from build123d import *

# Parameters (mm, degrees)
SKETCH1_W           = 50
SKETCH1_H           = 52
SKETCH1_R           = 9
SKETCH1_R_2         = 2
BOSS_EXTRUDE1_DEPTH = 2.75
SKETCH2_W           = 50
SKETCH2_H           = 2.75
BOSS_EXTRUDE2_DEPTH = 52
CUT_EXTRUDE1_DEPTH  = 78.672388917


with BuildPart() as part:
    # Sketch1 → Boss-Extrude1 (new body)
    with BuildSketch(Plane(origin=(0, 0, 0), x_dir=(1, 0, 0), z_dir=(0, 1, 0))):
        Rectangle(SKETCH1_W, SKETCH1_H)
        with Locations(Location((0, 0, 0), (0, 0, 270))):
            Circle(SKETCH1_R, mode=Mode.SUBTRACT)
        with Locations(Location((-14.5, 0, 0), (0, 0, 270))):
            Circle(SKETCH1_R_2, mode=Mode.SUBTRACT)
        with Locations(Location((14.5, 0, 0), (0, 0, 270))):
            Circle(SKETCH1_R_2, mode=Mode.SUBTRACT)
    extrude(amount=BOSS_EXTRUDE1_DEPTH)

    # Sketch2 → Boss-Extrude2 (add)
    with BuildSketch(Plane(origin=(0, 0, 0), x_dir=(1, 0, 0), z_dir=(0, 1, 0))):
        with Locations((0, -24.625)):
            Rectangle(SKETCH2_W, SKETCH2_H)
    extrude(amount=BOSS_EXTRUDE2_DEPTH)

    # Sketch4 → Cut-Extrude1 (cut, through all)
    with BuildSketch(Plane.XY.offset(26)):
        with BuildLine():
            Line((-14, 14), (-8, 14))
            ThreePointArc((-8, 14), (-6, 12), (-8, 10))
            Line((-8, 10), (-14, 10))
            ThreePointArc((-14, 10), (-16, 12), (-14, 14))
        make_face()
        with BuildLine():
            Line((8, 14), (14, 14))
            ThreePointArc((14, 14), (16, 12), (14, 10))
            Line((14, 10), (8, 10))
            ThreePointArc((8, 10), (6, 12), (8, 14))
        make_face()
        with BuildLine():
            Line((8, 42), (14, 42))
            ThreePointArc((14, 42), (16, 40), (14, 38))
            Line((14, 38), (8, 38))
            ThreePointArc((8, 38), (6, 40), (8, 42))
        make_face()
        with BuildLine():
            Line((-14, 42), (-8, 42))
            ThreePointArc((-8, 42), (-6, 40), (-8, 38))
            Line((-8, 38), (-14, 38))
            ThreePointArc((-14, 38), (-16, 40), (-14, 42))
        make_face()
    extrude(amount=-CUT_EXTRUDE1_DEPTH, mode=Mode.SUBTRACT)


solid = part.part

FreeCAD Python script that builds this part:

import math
import FreeCAD as App
import Part
import Sketcher
from FreeCAD import Vector

doc = App.newDocument("Part")
body = doc.addObject("PartDesign::Body", "Body")

sketch1 = doc.addObject("Sketcher::SketchObject", "Sketch")
body.addObject(sketch1)
sketch1.AttachmentSupport = (doc.XZ_Plane, [""])
sketch1.MapMode = "FlatFace"
sketch1.addGeometry([
    Part.LineSegment(Vector(-25, -26, 0), Vector(-25, 26, 0)),
    Part.LineSegment(Vector(-25, 26, 0), Vector(25, 26, 0)),
    Part.LineSegment(Vector(25, 26, 0), Vector(25, -26, 0)),
    Part.LineSegment(Vector(25, -26, 0), Vector(-25, -26, 0)),
    Part.Circle(Vector(-14.5, 0, 0), Vector(0, 0, 1), 2),
    Part.Circle(Vector(0, 0, 0), Vector(0, 0, 1), 9),
    Part.Circle(Vector(14.5, 0, 0), Vector(0, 0, 1), 2),
], False)
sketch1.addConstraint([
    Sketcher.Constraint("Coincident", 0, 2, 1, 1),
    Sketcher.Constraint("Coincident", 1, 2, 2, 1),
    Sketcher.Constraint("Coincident", 2, 2, 3, 1),
    Sketcher.Constraint("Coincident", 3, 2, 0, 1),
    Sketcher.Constraint("Vertical", 0),
    Sketcher.Constraint("Horizontal", 1),
    Sketcher.Constraint("Vertical", 2),
    Sketcher.Constraint("Horizontal", 3),
    Sketcher.Constraint("Coincident", 5, 3, -1, 1),
    Sketcher.Constraint("Equal", 4, 6),
    Sketcher.Constraint("Symmetric", 4, 3, 6, 3, -1, 1),
    Sketcher.Constraint("Symmetric", 0, 2, 2, 2, -1, 1),
    Sketcher.Constraint("PointOnObject", 4, 3, -1),
    Sketcher.Constraint("Diameter", 4, 4.0),
    Sketcher.Constraint("Diameter", 5, 18.0),
    Sketcher.Constraint("DistanceX", 1, 1, 1, 2, 50.0),
    Sketcher.Constraint("DistanceY", 0, 1, 0, 2, 52.0),
    Sketcher.Constraint("DistanceX", 4, 3, 6, 3, 29.0),
])
pad1 = doc.addObject("PartDesign::Pad", "Pad")
body.addObject(pad1)
pad1.Profile = sketch1
pad1.Length = 2.75
pad1.Reversed = True

sketch2 = doc.addObject("Sketcher::SketchObject", "Sketch001")
body.addObject(sketch2)
sketch2.AttachmentSupport = (doc.XZ_Plane, [""])
sketch2.MapMode = "FlatFace"
sketch2.addGeometry([
    Part.LineSegment(Vector(-25, 23.2, 0), Vector(-25, 26, 0)),
    Part.LineSegment(Vector(-25, 26, 0), Vector(25, 26, 0)),
    Part.LineSegment(Vector(25, 26, 0), Vector(25, 23.2, 0)),
    Part.LineSegment(Vector(25, 23.2, 0), Vector(-25, 23.2, 0)),
], False)
sketch2.addConstraint([
    Sketcher.Constraint("Coincident", 0, 2, 1, 1),
    Sketcher.Constraint("Coincident", 1, 2, 2, 1),
    Sketcher.Constraint("Coincident", 2, 2, 3, 1),
    Sketcher.Constraint("Coincident", 3, 2, 0, 1),
    Sketcher.Constraint("Vertical", 0),
    Sketcher.Constraint("Horizontal", 1),
    Sketcher.Constraint("Vertical", 2),
    Sketcher.Constraint("Horizontal", 3),
    Sketcher.Constraint("DistanceX", 1, 1, 1, 2, 50.0),
    Sketcher.Constraint("DistanceX", 0, 2, -1, 1, 25.0),
    Sketcher.Constraint("DistanceY", -1, 1, 0, 2, 26.0),
    Sketcher.Constraint("DistanceY", 0, 1, 0, 2, 2.75),
])
pad2 = doc.addObject("PartDesign::Pad", "Pad001")
body.addObject(pad2)
pad2.Profile = sketch2
pad2.Length = 52
pad2.Reversed = True

sketch3 = doc.addObject("Sketcher::SketchObject", "Sketch002")
body.addObject(sketch3)
sketch3.AttachmentSupport = (doc.XY_Plane, [""])
sketch3.MapMode = "FlatFace"
sketch3.AttachmentOffset = App.Placement(Vector(0, 0, 26), App.Rotation())
sketch3.addGeometry([
    Part.LineSegment(Vector(-8, 14, 0), Vector(-14, 14, 0)),
    Part.ArcOfCircle(Part.Circle(Vector(-14, 12, 0), Vector(0, 0, 1), 2), math.radians(90), math.radians(270)),
    Part.LineSegment(Vector(-14, 10, 0), Vector(-8, 10, 0)),
    Part.ArcOfCircle(Part.Circle(Vector(-8, 12, 0), Vector(0, 0, 1), 2), math.radians(-90), math.radians(90)),
    Part.LineSegment(Vector(14, 14, 0), Vector(8, 14, 0)),
    Part.ArcOfCircle(Part.Circle(Vector(8, 12, 0), Vector(0, 0, 1), 2), math.radians(90), math.radians(270)),
    Part.LineSegment(Vector(8, 10, 0), Vector(14, 10, 0)),
    Part.ArcOfCircle(Part.Circle(Vector(14, 12, 0), Vector(0, 0, 1), 2), math.radians(-90), math.radians(90)),
    Part.LineSegment(Vector(14, 42, 0), Vector(8, 42, 0)),
    Part.ArcOfCircle(Part.Circle(Vector(8, 40, 0), Vector(0, 0, 1), 2), math.radians(90), math.radians(270)),
    Part.LineSegment(Vector(8, 38, 0), Vector(14, 38, 0)),
    Part.ArcOfCircle(Part.Circle(Vector(14, 40, 0), Vector(0, 0, 1), 2), math.radians(-90), math.radians(90)),
    Part.LineSegment(Vector(-8, 42, 0), Vector(-14, 42, 0)),
    Part.ArcOfCircle(Part.Circle(Vector(-14, 40, 0), Vector(0, 0, 1), 2), math.radians(90), math.radians(270)),
    Part.LineSegment(Vector(-14, 38, 0), Vector(-8, 38, 0)),
    Part.ArcOfCircle(Part.Circle(Vector(-8, 40, 0), Vector(0, 0, 1), 2), math.radians(-90), math.radians(90)),
], False)
sketch3.addConstraint([
    Sketcher.Constraint("Tangent", 0, 2, 1, 1),
    Sketcher.Constraint("Tangent", 1, 2, 2, 1),
    Sketcher.Constraint("Tangent", 2, 2, 3, 1),
    Sketcher.Constraint("Tangent", 3, 2, 0, 1),
    Sketcher.Constraint("Tangent", 4, 2, 5, 1),
    Sketcher.Constraint("Tangent", 5, 2, 6, 1),
    Sketcher.Constraint("Tangent", 6, 2, 7, 1),
    Sketcher.Constraint("Tangent", 7, 2, 4, 1),
    Sketcher.Constraint("Tangent", 8, 2, 9, 1),
    Sketcher.Constraint("Tangent", 9, 2, 10, 1),
    Sketcher.Constraint("Tangent", 10, 2, 11, 1),
    Sketcher.Constraint("Tangent", 11, 2, 8, 1),
    Sketcher.Constraint("Tangent", 12, 2, 13, 1),
    Sketcher.Constraint("Tangent", 13, 2, 14, 1),
    Sketcher.Constraint("Tangent", 14, 2, 15, 1),
    Sketcher.Constraint("Tangent", 15, 2, 12, 1),
    Sketcher.Constraint("Horizontal", 0),
    Sketcher.Constraint("Horizontal", 2),
    Sketcher.Constraint("Horizontal", 4),
    Sketcher.Constraint("Horizontal", 6),
    Sketcher.Constraint("Horizontal", 8),
    Sketcher.Constraint("Horizontal", 10),
    Sketcher.Constraint("Horizontal", 12),
    Sketcher.Constraint("Horizontal", 14),
    Sketcher.Constraint("Equal", 3, 5),
    Sketcher.Constraint("Equal", 7, 9),
    Sketcher.Constraint("Equal", 11, 13),
    Sketcher.Constraint("Symmetric", 3, 3, 5, 3, -2),
    Sketcher.Constraint("Symmetric", 11, 3, 13, 3, -2),
    Sketcher.Constraint("Vertical", 5, 3, 9, 3),
    Sketcher.Constraint("Vertical", 7, 3, 11, 3),
    Sketcher.Constraint("Vertical", 1, 3, 13, 3),
    Sketcher.Constraint("Vertical", 3, 3, 15, 3),
    Sketcher.Constraint("Radius", 1, 2.0),
    Sketcher.Constraint("DistanceX", 0, 2, 0, 1, 6.0),
    Sketcher.Constraint("DistanceX", 1, 3, -1, 1, 14.0),
    Sketcher.Constraint("DistanceY", -1, 1, 1, 3, 12.0),
    Sketcher.Constraint("DistanceY", -1, 1, 9, 3, 40.0),
])
pocket1 = doc.addObject("PartDesign::Pocket", "Pocket")
body.addObject(pocket1)
pocket1.Profile = sketch3
pocket1.Type = "ThroughAll"

doc.recompute()
